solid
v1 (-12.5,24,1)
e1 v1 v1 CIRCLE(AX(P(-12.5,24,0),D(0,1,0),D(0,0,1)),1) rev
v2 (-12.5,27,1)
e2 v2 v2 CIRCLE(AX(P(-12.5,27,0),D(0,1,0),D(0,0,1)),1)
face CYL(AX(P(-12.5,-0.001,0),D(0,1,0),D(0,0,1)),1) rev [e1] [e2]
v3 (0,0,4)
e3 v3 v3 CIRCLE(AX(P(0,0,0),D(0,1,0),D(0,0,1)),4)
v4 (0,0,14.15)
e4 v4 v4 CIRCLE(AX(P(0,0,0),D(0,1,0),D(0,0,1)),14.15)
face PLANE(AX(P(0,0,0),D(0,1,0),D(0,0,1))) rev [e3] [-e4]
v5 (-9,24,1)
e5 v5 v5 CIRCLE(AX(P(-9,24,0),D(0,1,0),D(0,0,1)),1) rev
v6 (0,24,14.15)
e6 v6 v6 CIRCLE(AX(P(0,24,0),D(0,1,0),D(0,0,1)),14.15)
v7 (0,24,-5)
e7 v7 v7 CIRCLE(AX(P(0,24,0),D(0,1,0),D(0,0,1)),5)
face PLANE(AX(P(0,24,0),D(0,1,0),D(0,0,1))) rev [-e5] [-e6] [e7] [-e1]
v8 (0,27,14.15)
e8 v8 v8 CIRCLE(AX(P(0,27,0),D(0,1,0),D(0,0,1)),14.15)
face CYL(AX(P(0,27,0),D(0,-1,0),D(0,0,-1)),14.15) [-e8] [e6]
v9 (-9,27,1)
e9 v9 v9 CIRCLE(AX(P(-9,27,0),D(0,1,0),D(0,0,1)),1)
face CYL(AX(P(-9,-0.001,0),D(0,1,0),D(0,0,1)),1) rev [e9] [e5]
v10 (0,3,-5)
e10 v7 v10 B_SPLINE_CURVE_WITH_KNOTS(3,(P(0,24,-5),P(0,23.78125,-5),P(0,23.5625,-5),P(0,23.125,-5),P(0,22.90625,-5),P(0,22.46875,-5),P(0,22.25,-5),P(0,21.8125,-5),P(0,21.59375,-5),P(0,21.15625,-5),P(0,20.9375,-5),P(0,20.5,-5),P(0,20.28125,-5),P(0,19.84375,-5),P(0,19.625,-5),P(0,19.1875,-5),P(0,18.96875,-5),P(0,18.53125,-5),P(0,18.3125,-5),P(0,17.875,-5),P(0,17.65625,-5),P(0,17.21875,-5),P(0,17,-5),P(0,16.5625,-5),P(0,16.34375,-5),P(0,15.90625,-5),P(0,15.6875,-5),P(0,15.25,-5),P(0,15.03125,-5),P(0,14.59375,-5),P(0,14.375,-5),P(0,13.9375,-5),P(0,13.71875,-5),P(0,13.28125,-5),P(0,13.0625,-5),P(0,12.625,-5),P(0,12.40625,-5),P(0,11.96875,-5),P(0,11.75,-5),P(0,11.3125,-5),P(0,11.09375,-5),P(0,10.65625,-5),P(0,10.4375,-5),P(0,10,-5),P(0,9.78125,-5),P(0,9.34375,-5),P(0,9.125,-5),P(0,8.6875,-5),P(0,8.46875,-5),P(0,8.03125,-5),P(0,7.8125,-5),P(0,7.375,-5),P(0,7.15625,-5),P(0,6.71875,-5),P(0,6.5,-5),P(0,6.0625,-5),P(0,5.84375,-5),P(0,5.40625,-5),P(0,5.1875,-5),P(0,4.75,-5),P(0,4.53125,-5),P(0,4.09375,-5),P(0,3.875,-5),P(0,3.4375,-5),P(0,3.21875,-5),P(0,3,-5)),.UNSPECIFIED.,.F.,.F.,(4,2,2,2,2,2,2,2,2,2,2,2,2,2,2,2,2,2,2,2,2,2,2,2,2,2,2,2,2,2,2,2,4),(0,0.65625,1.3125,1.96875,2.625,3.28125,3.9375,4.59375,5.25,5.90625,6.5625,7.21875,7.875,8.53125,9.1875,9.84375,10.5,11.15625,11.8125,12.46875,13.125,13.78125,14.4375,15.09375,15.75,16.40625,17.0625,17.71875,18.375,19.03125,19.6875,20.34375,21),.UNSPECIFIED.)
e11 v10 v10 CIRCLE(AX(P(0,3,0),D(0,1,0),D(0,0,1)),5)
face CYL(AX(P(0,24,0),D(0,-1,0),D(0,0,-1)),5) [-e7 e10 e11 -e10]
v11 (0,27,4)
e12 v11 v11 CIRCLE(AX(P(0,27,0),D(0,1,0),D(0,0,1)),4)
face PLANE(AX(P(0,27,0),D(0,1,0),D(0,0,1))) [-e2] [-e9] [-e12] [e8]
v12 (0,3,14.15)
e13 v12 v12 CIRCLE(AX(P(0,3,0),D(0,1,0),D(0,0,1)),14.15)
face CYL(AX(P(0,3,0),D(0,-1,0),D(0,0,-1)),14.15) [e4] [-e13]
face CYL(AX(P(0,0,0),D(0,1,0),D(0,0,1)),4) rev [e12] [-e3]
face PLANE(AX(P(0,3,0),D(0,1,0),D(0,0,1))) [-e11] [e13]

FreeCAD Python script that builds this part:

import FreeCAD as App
import Part
import Sketcher
from FreeCAD import Vector

doc = App.newDocument("Part")
params = doc.addObject("Spreadsheet::Sheet", "Params")
for row, (alias, value) in enumerate([
    ("sketch1_diameter", "28.3 mm"),
    ("pad1_length", "3 mm"),
    ("sketch2_diameter", "10 mm"),
    ("pad2_length", "21 mm"),
    ("sketch3_diameter", "28.3 mm"),
    ("pad3_length", "3 mm"),
    ("sketch4_diameter", "8 mm"),
    ("sketch5_diameter", "2 mm"),
    ("sketch6_diameter", "2 mm"),
], start=1):
    params.set(f"A{row}", alias)
    params.set(f"B{row}", "=" + value)
    params.setAlias(f"B{row}", alias)

body = doc.addObject("PartDesign::Body", "Body")

# Sketch on XZ plane
sketch1 = body.newObject("Sketcher::SketchObject", "Sketch")
sketch1.AttachmentSupport = (doc.getObject("XZ_Plane"), [""])
sketch1.MapMode = "FlatFace"
sketch1.addGeometry(Part.Circle(Vector(0, 0, 0), Vector(0, 0, 1), 14), False)
sketch1.addConstraint([
    Sketcher.Constraint("Coincident", 0, 3, -1, 1),
    Sketcher.Constraint("Diameter", 0, 28.3),
])
sketch1.setExpression("Constraints[1]", "Params.sketch1_diameter")
pad1 = body.newObject("PartDesign::Pad", "Pad")
pad1.Profile = sketch1
pad1.setExpression("Length", "Params.pad1_length")
pad1.Reversed = True

# Sketch on XZ plane
sketch2 = body.newObject("Sketcher::SketchObject", "Sketch001")
sketch2.AttachmentSupport = (doc.getObject("XZ_Plane"), [""])
sketch2.MapMode = "FlatFace"
sketch2.AttachmentOffset = App.Placement(Vector(0, 0, -3), App.Rotation())
sketch2.addGeometry(Part.Circle(Vector(0, 0, 0), Vector(0, 0, 1), 5), False)
sketch2.addConstraint([
    Sketcher.Constraint("Coincident", 0, 3, -1, 1),
    Sketcher.Constraint("Diameter", 0, 10.0),
])
sketch2.setExpression("Constraints[1]", "Params.sketch2_diameter")
pad2 = body.newObject("PartDesign::Pad", "Pad001")
pad2.Profile = sketch2
pad2.setExpression("Length", "Params.pad2_length")
pad2.Reversed = True

# Sketch on XZ plane
sketch3 = body.newObject("Sketcher::SketchObject", "Sketch002")
sketch3.AttachmentSupport = (doc.getObject("XZ_Plane"), [""])
sketch3.MapMode = "FlatFace"
sketch3.AttachmentOffset = App.Placement(Vector(0, 0, -24), App.Rotation())
sketch3.addGeometry(Part.Circle(Vector(0, 0, 0), Vector(0, 0, 1), 14), False)
sketch3.addConstraint([
    Sketcher.Constraint("Coincident", 0, 3, -1, 1),
    Sketcher.Constraint("Diameter", 0, 28.3),
])
sketch3.setExpression("Constraints[1]", "Params.sketch3_diameter")
pad3 = body.newObject("PartDesign::Pad", "Pad002")
pad3.Profile = sketch3
pad3.setExpression("Length", "Params.pad3_length")
pad3.Reversed = True

# Sketch on XZ plane
sketch4 = body.newObject("Sketcher::SketchObject", "Sketch003")
sketch4.AttachmentSupport = (doc.getObject("XZ_Plane"), [""])
sketch4.MapMode = "FlatFace"
sketch4.AttachmentOffset = App.Placement(Vector(0, 0, -27), App.Rotation())
sketch4.addGeometry(Part.Circle(Vector(0, 0, 0), Vector(0, 0, 1), 4), False)
sketch4.addConstraint([
    Sketcher.Constraint("Coincident", 0, 3, -1, 1),
    Sketcher.Constraint("Diameter", 0, 8.0),
])
sketch4.setExpression("Constraints[1]", "Params.sketch4_diameter")
pocket1 = body.newObject("PartDesign::Pocket", "Pocket")
pocket1.Profile = sketch4
pocket1.Type = "ThroughAll"
pocket1.Reversed = True

# Sketch on XZ plane
sketch5 = body.newObject("Sketcher::SketchObject", "Sketch004")
sketch5.AttachmentSupport = (doc.getObject("XZ_Plane"), [""])
sketch5.MapMode = "FlatFace"
sketch5.AttachmentOffset = App.Placement(Vector(0, 0, -27), App.Rotation())
sketch5.addGeometry(Part.Circle(Vector(-9, 0, 0), Vector(0, 0, 1), 1), False)
sketch5.addConstraint([
    Sketcher.Constraint("PointOnObject", 0, 3, -1),
    Sketcher.Constraint("Diameter", 0, 2.0),
    Sketcher.Constraint("DistanceX", 0, 3, -1, 1, 9.0),
])
sketch5.setExpression("Constraints[1]", "Params.sketch5_diameter")
pocket2 = body.newObject("PartDesign::Pocket", "Pocket001")
pocket2.Profile = sketch5
pocket2.Type = "UpToFirst"
pocket2.Reversed = True

# Sketch on XZ plane
sketch6 = body.newObject("Sketcher::SketchObject", "Sketch005")
sketch6.AttachmentSupport = (doc.getObject("XZ_Plane"), [""])
sketch6.MapMode = "FlatFace"
sketch6.AttachmentOffset = App.Placement(Vector(0, 0, -27), App.Rotation())
sketch6.addGeometry(Part.Circle(Vector(-12.5, 0, 0), Vector(0, 0, 1), 1), False)
sketch6.addConstraint([
    Sketcher.Constraint("PointOnObject", 0, 3, -1),
    Sketcher.Constraint("Diameter", 0, 2.0),
    Sketcher.Constraint("DistanceX", 0, 3, -1, 1, 12.5),
])
sketch6.setExpression("Constraints[1]", "Params.sketch6_diameter")
pocket3 = body.newObject("PartDesign::Pocket", "Pocket002")
pocket3.Profile = sketch6
pocket3.Type = "UpToFirst"
pocket3.Reversed = True

doc.recompute()
